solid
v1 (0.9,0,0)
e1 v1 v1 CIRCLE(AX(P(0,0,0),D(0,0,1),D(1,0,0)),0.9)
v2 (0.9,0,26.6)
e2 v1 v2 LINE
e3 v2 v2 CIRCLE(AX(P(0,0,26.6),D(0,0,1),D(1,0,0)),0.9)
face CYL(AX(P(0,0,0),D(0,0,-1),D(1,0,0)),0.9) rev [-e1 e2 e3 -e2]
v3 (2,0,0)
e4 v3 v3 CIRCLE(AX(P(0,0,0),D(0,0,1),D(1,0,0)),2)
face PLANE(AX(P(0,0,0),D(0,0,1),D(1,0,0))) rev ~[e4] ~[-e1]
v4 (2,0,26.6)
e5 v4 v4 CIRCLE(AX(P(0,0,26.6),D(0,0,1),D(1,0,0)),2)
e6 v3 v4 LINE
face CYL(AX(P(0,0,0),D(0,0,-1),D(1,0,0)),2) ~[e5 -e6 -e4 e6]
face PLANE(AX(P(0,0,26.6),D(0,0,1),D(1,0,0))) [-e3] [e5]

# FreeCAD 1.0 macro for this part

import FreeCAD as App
import Part
import Sketcher

V = App.Vector
Q = App.Units.Quantity

doc = App.newDocument("Part")
body = doc.addObject("PartDesign::Body", "Body")

# Sketch on XY plane
sketch1 = body.newObject("Sketcher::SketchObject", "Sketch")
sketch1.AttachmentSupport = (doc.getObject("XY_Plane"), [""])
sketch1.MapMode = "FlatFace"
sketch1.addGeometry(Part.Circle(V(0, 0, 0), V(0, 0, 1), 0.9), False)
sketch1.addConstraint([
    Sketcher.Constraint("Coincident", 0, 3, -1, 1),
    Sketcher.Constraint("Diameter", 0, Q("1.8 mm")),
])
pad1 = body.newObject("PartDesign::Pad", "Pad")
pad1.Profile = sketch1
pad1.Length = 26.6
body2 = doc.addObject("PartDesign::Body", "Body001")

# Sketch on XY plane
sketch2 = body2.newObject("Sketcher::SketchObject", "Sketch001")
sketch2.AttachmentSupport = (doc.getObject("XY_Plane001"), [""])
sketch2.MapMode = "FlatFace"
sketch2.addGeometry(Part.Circle(V(0, 0, 0), V(0, 0, 1), 2), False)
sketch2.addConstraint([
    Sketcher.Constraint("Coincident", 0, 3, -1, 1),
    Sketcher.Constraint("Diameter", 0, Q("4 mm")),
])
pad2 = body2.newObject("PartDesign::Pad", "Pad001")
pad2.Profile = sketch2
pad2.Length = 26.6
doc.recompute()

boolean = body2.newObject("PartDesign::Boolean", "Boolean")
boolean.Type = "Cut"
boolean.addObjects([body])

doc.recompute()
